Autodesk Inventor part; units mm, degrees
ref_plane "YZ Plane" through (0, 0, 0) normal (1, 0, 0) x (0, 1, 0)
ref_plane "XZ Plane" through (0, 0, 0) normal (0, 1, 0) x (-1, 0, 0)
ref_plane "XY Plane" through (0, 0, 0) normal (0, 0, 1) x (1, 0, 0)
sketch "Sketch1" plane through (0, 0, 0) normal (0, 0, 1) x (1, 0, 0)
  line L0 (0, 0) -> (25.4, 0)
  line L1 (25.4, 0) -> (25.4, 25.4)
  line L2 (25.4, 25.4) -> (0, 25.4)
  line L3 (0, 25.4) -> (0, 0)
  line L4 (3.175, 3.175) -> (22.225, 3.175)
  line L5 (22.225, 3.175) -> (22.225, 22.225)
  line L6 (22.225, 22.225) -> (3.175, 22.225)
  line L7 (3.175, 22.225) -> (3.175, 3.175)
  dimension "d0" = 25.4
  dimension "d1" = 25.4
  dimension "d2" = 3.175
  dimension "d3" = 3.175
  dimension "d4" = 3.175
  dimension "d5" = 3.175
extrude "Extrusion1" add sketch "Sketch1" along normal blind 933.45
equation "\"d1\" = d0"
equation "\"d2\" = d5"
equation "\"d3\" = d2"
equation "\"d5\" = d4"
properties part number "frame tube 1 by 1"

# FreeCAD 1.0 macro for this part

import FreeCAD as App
import Part
import Sketcher

V = App.Vector
Q = App.Units.Quantity

doc = App.newDocument("Part")
body = doc.addObject("PartDesign::Body", "Body")

sketch1 = doc.addObject("Sketcher::SketchObject", "Sketch")
body.addObject(sketch1)
sketch1.AttachmentSupport = (doc.XY_Plane, [""])
sketch1.MapMode = "FlatFace"
sketch1.addGeometry(Part.LineSegment(V(0, 25, 0), V(0, 0, 0)), False)
sketch1.addGeometry(Part.LineSegment(V(0, 0, 0), V(25, 0, 0)), False)
sketch1.addGeometry(Part.LineSegment(V(25, 0, 0), V(25, 25, 0)), False)
sketch1.addGeometry(Part.LineSegment(V(25, 25, 0), V(0, 25, 0)), False)
sketch1.addGeometry(Part.LineSegment(V(22, 3, 0), V(3, 3, 0)), False)
sketch1.addGeometry(Part.LineSegment(V(3, 3, 0), V(3, 22, 0)), False)
sketch1.addGeometry(Part.LineSegment(V(3, 22, 0), V(22, 22, 0)), False)
sketch1.addGeometry(Part.LineSegment(V(22, 22, 0), V(22, 3, 0)), False)
sketch1.addConstraint(Sketcher.Constraint("Coincident", 0, 2, 1, 1))
sketch1.addConstraint(Sketcher.Constraint("Coincident", 1, 2, 2, 1))
sketch1.addConstraint(Sketcher.Constraint("Coincident", 2, 2, 3, 1))
sketch1.addConstraint(Sketcher.Constraint("Coincident", 3, 2, 0, 1))
sketch1.addConstraint(Sketcher.Constraint("Coincident", 4, 2, 5, 1))
sketch1.addConstraint(Sketcher.Constraint("Coincident", 5, 2, 6, 1))
sketch1.addConstraint(Sketcher.Constraint("Coincident", 6, 2, 7, 1))
sketch1.addConstraint(Sketcher.Constraint("Coincident", 7, 2, 4, 1))
sketch1.addConstraint(Sketcher.Constraint("Vertical", 0))
sketch1.addConstraint(Sketcher.Constraint("Horizontal", 1))
sketch1.addConstraint(Sketcher.Constraint("Vertical", 2))
sketch1.addConstraint(Sketcher.Constraint("Horizontal", 3))
sketch1.addConstraint(Sketcher.Constraint("Horizontal", 4))
sketch1.addConstraint(Sketcher.Constraint("Vertical", 5))
sketch1.addConstraint(Sketcher.Constraint("Horizontal", 6))
sketch1.addConstraint(Sketcher.Constraint("Vertical", 7))
sketch1.addConstraint(Sketcher.Constraint("Coincident", 0, 2, -1, 1))
sketch1.addConstraint(Sketcher.Constraint("Equal", 3, 0))
sketch1.addConstraint(Sketcher.Constraint("Equal", 6, 5))
sketch1.addConstraint(Sketcher.Constraint("DistanceX", 1, 1, 1, 2, Q("1 in")))
sketch1.addConstraint(Sketcher.Constraint("DistanceX", -1, 1, 4, 2, Q("0.125 in")))
sketch1.addConstraint(Sketcher.Constraint("DistanceY", -1, 1, 4, 2, Q("0.125 in")))
sketch1.addConstraint(Sketcher.Constraint("DistanceY", 5, 2, 3, 2, Q("0.125 in")))
pad1 = doc.addObject("PartDesign::Pad", "Pad")
body.addObject(pad1)
pad1.Profile = sketch1
pad1.Length = Q("36.75 in")

doc.recompute()
